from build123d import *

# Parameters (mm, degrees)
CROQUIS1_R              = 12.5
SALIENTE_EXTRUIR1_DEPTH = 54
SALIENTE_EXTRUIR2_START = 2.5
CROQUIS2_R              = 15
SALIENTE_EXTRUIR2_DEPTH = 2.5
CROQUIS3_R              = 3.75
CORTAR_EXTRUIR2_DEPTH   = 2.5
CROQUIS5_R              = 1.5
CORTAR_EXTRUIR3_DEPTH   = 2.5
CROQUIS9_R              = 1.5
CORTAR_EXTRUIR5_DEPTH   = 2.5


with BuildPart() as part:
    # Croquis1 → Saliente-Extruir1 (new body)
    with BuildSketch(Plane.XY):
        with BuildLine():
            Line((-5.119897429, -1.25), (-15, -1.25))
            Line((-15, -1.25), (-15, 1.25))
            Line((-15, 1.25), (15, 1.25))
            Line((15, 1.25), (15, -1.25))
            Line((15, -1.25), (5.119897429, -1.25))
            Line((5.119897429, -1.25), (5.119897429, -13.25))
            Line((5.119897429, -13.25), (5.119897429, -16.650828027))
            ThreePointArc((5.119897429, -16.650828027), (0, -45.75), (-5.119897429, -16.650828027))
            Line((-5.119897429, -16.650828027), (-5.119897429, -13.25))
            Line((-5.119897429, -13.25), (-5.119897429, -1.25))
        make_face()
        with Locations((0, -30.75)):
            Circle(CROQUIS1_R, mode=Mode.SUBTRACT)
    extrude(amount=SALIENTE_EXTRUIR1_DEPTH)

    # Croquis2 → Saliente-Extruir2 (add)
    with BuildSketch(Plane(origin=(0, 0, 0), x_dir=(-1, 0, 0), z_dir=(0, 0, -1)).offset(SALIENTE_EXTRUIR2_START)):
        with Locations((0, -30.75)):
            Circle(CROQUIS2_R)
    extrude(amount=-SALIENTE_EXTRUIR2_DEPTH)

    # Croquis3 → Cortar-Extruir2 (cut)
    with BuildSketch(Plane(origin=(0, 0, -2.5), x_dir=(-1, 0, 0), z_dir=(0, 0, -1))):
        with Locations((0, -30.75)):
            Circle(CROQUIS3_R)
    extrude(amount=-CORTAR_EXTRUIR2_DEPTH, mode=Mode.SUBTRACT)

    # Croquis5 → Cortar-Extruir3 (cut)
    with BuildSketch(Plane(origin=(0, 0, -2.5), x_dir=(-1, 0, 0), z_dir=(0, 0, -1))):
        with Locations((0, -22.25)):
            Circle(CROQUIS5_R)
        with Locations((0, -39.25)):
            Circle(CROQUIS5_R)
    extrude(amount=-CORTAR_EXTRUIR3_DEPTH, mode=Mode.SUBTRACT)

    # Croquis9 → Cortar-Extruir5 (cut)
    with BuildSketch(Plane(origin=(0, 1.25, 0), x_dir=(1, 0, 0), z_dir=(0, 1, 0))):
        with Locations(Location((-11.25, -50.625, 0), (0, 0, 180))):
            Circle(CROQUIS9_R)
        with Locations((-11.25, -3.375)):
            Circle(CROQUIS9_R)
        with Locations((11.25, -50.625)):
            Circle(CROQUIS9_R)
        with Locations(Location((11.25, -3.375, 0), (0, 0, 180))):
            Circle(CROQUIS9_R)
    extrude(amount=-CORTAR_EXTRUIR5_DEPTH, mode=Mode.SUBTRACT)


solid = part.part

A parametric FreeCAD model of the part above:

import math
import FreeCAD as App
import Part
import Sketcher

V = App.Vector
Q = App.Units.Quantity

doc = App.newDocument("Part")
body = doc.addObject("PartDesign::Body", "Body")

sketch1 = body.newObject("Sketcher::SketchObject", "Sketch")
sketch1.AttachmentSupport = (doc.getObject("XY_Plane"), [""])
sketch1.MapMode = "FlatFace"
sketch1.addGeometry([
    Part.LineSegment(V(-15, -1.2, 0), V(-5.1, -1.2, 0)),
    Part.LineSegment(V(-5.1, -1.2, 0), V(-5.1, -16.7, 0)),
    Part.ArcOfCircle(Part.Circle(V(0, -30.8, 0), V(0, 0, 1), 15), math.radians(110), math.radians(430)),
    Part.LineSegment(V(5.1, -16.7, 0), V(5.1, -1.2, 0)),
    Part.LineSegment(V(5.1, -1.2, 0), V(15, -1.2, 0)),
    Part.LineSegment(V(15, -1.2, 0), V(15, 1.2, 0)),
    Part.LineSegment(V(15, 1.2, 0), V(-15, 1.2, 0)),
    Part.LineSegment(V(-15, 1.2, 0), V(-15, -1.2, 0)),
    Part.Circle(V(0, -30.8, 0), V(0, 0, 1), 12.5),
], False)
sketch1.addConstraint([
    Sketcher.Constraint("Coincident", 0, 2, 1, 1),
    Sketcher.Constraint("Coincident", 1, 2, 2, 1),
    Sketcher.Constraint("Coincident", 2, 2, 3, 1),
    Sketcher.Constraint("Coincident", 3, 2, 4, 1),
    Sketcher.Constraint("Coincident", 4, 2, 5, 1),
    Sketcher.Constraint("Coincident", 5, 2, 6, 1),
    Sketcher.Constraint("Coincident", 6, 2, 7, 1),
    Sketcher.Constraint("Coincident", 7, 2, 0, 1),
    Sketcher.Constraint("Horizontal", 0),
    Sketcher.Constraint("Vertical", 1),
    Sketcher.Constraint("Vertical", 3),
    Sketcher.Constraint("Horizontal", 4),
    Sketcher.Constraint("Vertical", 5),
    Sketcher.Constraint("Horizontal", 6),
    Sketcher.Constraint("Vertical", 7),
    Sketcher.Constraint("Coincident", 8, 3, 2, 3),
    Sketcher.Constraint("Symmetric", 4, 2, 6, 2, -1, 1),
    Sketcher.Constraint("Symmetric", 1, 2, 2, 2, -2),
    Sketcher.Constraint("Horizontal", 0, 2, 3, 2),
    Sketcher.Constraint("Diameter", 8, Q("25 mm")),
    Sketcher.Constraint("Radius", 2, Q("15 mm")),
    Sketcher.Constraint("DistanceX", 6, 2, 6, 1, Q("30 mm")),
    Sketcher.Constraint("DistanceY", 5, 1, 5, 2, Q("2.5 mm")),
    Sketcher.Constraint("DistanceY", 2, 3, 0, 2, Q("29.5 mm")),
    Sketcher.Constraint("DistanceY", 1, 2, 1, 1, Q("15.400828 mm")),
])
pad1 = body.newObject("PartDesign::Pad", "Pad")
pad1.Profile = sketch1
pad1.Length = 54

sketch2 = body.newObject("Sketcher::SketchObject", "Sketch001")
sketch2.AttachmentSupport = (doc.getObject("XY_Plane"), [""])
sketch2.MapMode = "FlatFace"
sketch2.AttachmentOffset = App.Placement(V(0, 0, -2.5), App.Rotation())
sketch2.addGeometry(Part.Circle(V(0, -31, 0), V(0, 0, 1), 15), False)
sketch2.addConstraint([
    Sketcher.Constraint("PointOnObject", 0, 3, -2),
    Sketcher.Constraint("Diameter", 0, Q("30 mm")),
    Sketcher.Constraint("DistanceY", 0, 3, -1, 1, Q("30.75 mm")),
])
pad2 = body.newObject("PartDesign::Pad", "Pad001")
pad2.Profile = sketch2
pad2.Length = 2.5

sketch3 = body.newObject("Sketcher::SketchObject", "Sketch002")
sketch3.AttachmentSupport = (doc.getObject("XY_Plane"), [""])
sketch3.MapMode = "FlatFace"
sketch3.AttachmentOffset = App.Placement(V(0, 0, -2.5), App.Rotation())
sketch3.addGeometry(Part.Circle(V(0, -30.8, 0), V(0, 0, 1), 3.8), False)
sketch3.addConstraint([
    Sketcher.Constraint("PointOnObject", 0, 3, -2),
    Sketcher.Constraint("Diameter", 0, Q("7.5 mm")),
    Sketcher.Constraint("DistanceY", 0, 3, -1, 1, Q("30.75 mm")),
])
pocket1 = body.newObject("PartDesign::Pocket", "Pocket")
pocket1.Profile = sketch3
pocket1.Length = 2.5
pocket1.Reversed = True

sketch4 = body.newObject("Sketcher::SketchObject", "Sketch003")
sketch4.AttachmentSupport = (doc.getObject("XY_Plane"), [""])
sketch4.MapMode = "FlatFace"
sketch4.AttachmentOffset = App.Placement(V(0, 0, -2.5), App.Rotation())
sketch4.addGeometry([
    Part.Circle(V(0, -22.2, 0), V(0, 0, 1), 1.5),
    Part.Circle(V(0, -39.2, 0), V(0, 0, 1), 1.5),
], False)
sketch4.addConstraint([
    Sketcher.Constraint("Equal", 0, 1),
    Sketcher.Constraint("PointOnObject", 0, 3, -2),
    Sketcher.Constraint("PointOnObject", 1, 3, -2),
    Sketcher.Constraint("Diameter", 0, Q("3 mm")),
    Sketcher.Constraint("DistanceY", 1, 3, 0, 3, Q("17 mm")),
    Sketcher.Constraint("DistanceY", 0, 3, -1, 1, Q("22.25 mm")),
])
pocket2 = body.newObject("PartDesign::Pocket", "Pocket001")
pocket2.Profile = sketch4
pocket2.Length = 2.5
pocket2.Reversed = True

sketch5 = body.newObject("Sketcher::SketchObject", "Sketch004")
sketch5.AttachmentSupport = (doc.getObject("XZ_Plane"), [""])
sketch5.MapMode = "FlatFace"
sketch5.AttachmentOffset = App.Placement(V(0, 0, -1.25), App.Rotation())
sketch5.addGeometry([
    Part.Circle(V(-11.2, 50.6, 0), V(0, 0, 1), 1.5),
    Part.Circle(V(-11.2, 3.4, 0), V(0, 0, 1), 1.5),
    Part.Circle(V(11.2, 50.6, 0), V(0, 0, 1), 1.5),
    Part.Circle(V(11.2, 3.4, 0), V(0, 0, 1), 1.5),
], False)
sketch5.addConstraint([
    Sketcher.Constraint("Equal", 0, 1),
    Sketcher.Constraint("Equal", 1, 2),
    Sketcher.Constraint("Equal", 2, 3),
    Sketcher.Constraint("Symmetric", 0, 3, 2, 3, -2),
    Sketcher.Constraint("Symmetric", 1, 3, 3, 3, -2),
    Sketcher.Constraint("Vertical", 0, 3, 1, 3),
    Sketcher.Constraint("Diameter", 0, Q("3 mm")),
    Sketcher.Constraint("DistanceX", 0, 3, 2, 3, Q("22.5 mm")),
    Sketcher.Constraint("DistanceY", 1, 3, 0, 3, Q("47.25 mm")),
    Sketcher.Constraint("DistanceY", -1, 1, 0, 3, Q("50.625 mm")),
])
pocket3 = body.newObject("PartDesign::Pocket", "Pocket002")
pocket3.Profile = sketch5
pocket3.Length = 2.5
pocket3.Reversed = True

doc.recompute()
